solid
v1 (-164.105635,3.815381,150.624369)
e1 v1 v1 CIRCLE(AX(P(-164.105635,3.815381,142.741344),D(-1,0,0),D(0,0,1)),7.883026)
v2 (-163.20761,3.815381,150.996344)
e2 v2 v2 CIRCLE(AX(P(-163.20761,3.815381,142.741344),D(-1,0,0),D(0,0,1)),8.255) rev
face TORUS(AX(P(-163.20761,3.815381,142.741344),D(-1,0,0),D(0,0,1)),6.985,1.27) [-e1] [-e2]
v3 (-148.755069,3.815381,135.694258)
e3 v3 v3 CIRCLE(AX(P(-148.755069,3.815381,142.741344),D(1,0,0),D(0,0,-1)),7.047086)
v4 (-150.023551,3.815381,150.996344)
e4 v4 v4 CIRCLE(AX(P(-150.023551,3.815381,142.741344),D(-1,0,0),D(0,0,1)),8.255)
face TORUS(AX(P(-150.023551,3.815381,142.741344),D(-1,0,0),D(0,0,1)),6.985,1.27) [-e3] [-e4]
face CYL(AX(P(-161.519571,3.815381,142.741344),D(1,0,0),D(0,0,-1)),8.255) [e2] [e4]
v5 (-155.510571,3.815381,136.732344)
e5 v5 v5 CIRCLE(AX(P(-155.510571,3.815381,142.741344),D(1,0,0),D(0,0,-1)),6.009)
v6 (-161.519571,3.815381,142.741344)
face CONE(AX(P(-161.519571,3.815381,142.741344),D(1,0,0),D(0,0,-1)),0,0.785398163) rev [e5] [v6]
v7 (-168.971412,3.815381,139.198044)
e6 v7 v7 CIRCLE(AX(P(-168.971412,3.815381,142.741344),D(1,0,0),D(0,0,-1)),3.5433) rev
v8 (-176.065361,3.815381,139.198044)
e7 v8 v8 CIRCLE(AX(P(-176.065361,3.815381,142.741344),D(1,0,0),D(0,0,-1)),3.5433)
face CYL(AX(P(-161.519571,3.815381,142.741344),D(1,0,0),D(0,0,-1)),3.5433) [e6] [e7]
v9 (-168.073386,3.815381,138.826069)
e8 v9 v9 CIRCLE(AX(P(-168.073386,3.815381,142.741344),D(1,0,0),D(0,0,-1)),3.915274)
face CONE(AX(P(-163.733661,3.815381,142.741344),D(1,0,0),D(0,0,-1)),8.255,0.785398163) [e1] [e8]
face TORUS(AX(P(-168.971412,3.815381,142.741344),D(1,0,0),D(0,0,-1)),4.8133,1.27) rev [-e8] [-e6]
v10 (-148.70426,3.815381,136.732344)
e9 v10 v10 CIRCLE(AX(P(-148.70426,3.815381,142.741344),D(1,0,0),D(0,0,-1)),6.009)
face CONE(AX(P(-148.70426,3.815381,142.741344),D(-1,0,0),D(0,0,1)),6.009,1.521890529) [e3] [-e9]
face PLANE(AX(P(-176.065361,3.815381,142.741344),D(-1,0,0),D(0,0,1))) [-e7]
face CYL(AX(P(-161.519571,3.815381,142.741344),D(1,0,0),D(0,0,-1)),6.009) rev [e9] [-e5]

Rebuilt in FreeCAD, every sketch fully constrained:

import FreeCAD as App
import Part
import Sketcher
Q = App.Units.Quantity


def edges_at(feature, points):
    """Names of the edges that pass closest to the given points."""
    edges = feature.Shape.Edges
    near = lambda p: min(range(len(edges)), key=lambda i: edges[i].distToShape(Part.Vertex(*p))[0])
    return sorted({f"Edge{near(p) + 1}" for p in points})


def add_polygon(sketch, points):
    """Adds a closed chain of lines whose ends are joined by coincident constraints."""
    first, n = sketch.GeometryCount, len(points)
    for a, b in zip(points, points[1:] + points[:1]):
        sketch.addGeometry(Part.LineSegment(App.Vector(*a, 0), App.Vector(*b, 0)), False)
    for i in range(n):
        sketch.addConstraint(Sketcher.Constraint("Coincident", first + i, 2, first + (i + 1) % n, 1))

doc = App.newDocument("Part")
body = doc.addObject("PartDesign::Body", "Body")

sketch1 = body.newObject("Sketcher::SketchObject", "Sketch")
sketch1.Placement = App.Placement(App.Vector(-264.677361, 57.593912, 41.33505), App.Rotation(App.Vector(-1, 0, 0), App.Vector(0, -0.468519399, 0.883453209), App.Vector(0, 0.883453209, 0.468519399), "ZXY"))
add_polygon(sketch1, [(-96.2, 111.2), (-88.6, 111.2), (-88.6, 114.8), (-103.2, 114.8), (-109.2, 108.8), (-116, 108.8), (-115.9, 106.5), (-100.9, 106.5)])
sketch1.addGeometry(Part.LineSegment(App.Vector(-116, 114.8, 0), App.Vector(-88.6, 114.8, 0)), True)
sketch1.addConstraint([
    Sketcher.Constraint("Horizontal", 0),
    Sketcher.Constraint("Vertical", 1),
    Sketcher.Constraint("Horizontal", 2),
    Sketcher.Constraint("Horizontal", 4),
    Sketcher.Constraint("Horizontal", 6),
    Sketcher.Constraint("Horizontal", 8),
    Sketcher.Constraint("Coincident", 8, 2, 1, 2),
    Sketcher.Constraint("Parallel", 3, 7),
    Sketcher.Constraint("Vertical", 4, 2, 8, 1),
    Sketcher.Constraint("DistanceX", 0, 1, 0, 2, Q("0.3 in")),
    Sketcher.Constraint("Angle", 3, Q("-135 deg")),
    Sketcher.Constraint("DistanceY", 1, 1, 1, 2, Q("0.1395 in")),
    Sketcher.Constraint("DistanceY", 5, 2, 2, 2, Q("0.325 in")),
    Sketcher.Constraint("DistanceX", 8, 1, 8, 2, Q("27.3611 mm")),
    Sketcher.Constraint("DistanceX", 2, 2, 2, 1, Q("14.54579 mm")),
    Sketcher.Constraint("DistanceX", 4, 2, 4, 1, Q("6.806311 mm")),
    Sketcher.Constraint("DistanceX", 6, 1, 6, 2, Q("14.91947 mm")),
    Sketcher.Constraint("DistanceX", 0, 2, -1, 1, Q("88.612 mm")),
    Sketcher.Constraint("DistanceY", -1, 1, 0, 2, Q("111.240701 mm")),
])
revolution = body.newObject("PartDesign::Revolution", "Revolution")
revolution.Profile = sketch1
revolution.ReferenceAxis = (sketch1, ["Axis0"])
revolution.Angle = 360
doc.recompute()

fillet = body.newObject("PartDesign::Fillet", "Fillet")
fillet.Base = (revolution, edges_at(revolution, [(-168.445, 3.815, 146.285), (-163.734, 3.815, 150.996), (-148.814, 3.815, 150.996)]))
fillet.Radius = Q("0.05 in")

doc.recompute()
